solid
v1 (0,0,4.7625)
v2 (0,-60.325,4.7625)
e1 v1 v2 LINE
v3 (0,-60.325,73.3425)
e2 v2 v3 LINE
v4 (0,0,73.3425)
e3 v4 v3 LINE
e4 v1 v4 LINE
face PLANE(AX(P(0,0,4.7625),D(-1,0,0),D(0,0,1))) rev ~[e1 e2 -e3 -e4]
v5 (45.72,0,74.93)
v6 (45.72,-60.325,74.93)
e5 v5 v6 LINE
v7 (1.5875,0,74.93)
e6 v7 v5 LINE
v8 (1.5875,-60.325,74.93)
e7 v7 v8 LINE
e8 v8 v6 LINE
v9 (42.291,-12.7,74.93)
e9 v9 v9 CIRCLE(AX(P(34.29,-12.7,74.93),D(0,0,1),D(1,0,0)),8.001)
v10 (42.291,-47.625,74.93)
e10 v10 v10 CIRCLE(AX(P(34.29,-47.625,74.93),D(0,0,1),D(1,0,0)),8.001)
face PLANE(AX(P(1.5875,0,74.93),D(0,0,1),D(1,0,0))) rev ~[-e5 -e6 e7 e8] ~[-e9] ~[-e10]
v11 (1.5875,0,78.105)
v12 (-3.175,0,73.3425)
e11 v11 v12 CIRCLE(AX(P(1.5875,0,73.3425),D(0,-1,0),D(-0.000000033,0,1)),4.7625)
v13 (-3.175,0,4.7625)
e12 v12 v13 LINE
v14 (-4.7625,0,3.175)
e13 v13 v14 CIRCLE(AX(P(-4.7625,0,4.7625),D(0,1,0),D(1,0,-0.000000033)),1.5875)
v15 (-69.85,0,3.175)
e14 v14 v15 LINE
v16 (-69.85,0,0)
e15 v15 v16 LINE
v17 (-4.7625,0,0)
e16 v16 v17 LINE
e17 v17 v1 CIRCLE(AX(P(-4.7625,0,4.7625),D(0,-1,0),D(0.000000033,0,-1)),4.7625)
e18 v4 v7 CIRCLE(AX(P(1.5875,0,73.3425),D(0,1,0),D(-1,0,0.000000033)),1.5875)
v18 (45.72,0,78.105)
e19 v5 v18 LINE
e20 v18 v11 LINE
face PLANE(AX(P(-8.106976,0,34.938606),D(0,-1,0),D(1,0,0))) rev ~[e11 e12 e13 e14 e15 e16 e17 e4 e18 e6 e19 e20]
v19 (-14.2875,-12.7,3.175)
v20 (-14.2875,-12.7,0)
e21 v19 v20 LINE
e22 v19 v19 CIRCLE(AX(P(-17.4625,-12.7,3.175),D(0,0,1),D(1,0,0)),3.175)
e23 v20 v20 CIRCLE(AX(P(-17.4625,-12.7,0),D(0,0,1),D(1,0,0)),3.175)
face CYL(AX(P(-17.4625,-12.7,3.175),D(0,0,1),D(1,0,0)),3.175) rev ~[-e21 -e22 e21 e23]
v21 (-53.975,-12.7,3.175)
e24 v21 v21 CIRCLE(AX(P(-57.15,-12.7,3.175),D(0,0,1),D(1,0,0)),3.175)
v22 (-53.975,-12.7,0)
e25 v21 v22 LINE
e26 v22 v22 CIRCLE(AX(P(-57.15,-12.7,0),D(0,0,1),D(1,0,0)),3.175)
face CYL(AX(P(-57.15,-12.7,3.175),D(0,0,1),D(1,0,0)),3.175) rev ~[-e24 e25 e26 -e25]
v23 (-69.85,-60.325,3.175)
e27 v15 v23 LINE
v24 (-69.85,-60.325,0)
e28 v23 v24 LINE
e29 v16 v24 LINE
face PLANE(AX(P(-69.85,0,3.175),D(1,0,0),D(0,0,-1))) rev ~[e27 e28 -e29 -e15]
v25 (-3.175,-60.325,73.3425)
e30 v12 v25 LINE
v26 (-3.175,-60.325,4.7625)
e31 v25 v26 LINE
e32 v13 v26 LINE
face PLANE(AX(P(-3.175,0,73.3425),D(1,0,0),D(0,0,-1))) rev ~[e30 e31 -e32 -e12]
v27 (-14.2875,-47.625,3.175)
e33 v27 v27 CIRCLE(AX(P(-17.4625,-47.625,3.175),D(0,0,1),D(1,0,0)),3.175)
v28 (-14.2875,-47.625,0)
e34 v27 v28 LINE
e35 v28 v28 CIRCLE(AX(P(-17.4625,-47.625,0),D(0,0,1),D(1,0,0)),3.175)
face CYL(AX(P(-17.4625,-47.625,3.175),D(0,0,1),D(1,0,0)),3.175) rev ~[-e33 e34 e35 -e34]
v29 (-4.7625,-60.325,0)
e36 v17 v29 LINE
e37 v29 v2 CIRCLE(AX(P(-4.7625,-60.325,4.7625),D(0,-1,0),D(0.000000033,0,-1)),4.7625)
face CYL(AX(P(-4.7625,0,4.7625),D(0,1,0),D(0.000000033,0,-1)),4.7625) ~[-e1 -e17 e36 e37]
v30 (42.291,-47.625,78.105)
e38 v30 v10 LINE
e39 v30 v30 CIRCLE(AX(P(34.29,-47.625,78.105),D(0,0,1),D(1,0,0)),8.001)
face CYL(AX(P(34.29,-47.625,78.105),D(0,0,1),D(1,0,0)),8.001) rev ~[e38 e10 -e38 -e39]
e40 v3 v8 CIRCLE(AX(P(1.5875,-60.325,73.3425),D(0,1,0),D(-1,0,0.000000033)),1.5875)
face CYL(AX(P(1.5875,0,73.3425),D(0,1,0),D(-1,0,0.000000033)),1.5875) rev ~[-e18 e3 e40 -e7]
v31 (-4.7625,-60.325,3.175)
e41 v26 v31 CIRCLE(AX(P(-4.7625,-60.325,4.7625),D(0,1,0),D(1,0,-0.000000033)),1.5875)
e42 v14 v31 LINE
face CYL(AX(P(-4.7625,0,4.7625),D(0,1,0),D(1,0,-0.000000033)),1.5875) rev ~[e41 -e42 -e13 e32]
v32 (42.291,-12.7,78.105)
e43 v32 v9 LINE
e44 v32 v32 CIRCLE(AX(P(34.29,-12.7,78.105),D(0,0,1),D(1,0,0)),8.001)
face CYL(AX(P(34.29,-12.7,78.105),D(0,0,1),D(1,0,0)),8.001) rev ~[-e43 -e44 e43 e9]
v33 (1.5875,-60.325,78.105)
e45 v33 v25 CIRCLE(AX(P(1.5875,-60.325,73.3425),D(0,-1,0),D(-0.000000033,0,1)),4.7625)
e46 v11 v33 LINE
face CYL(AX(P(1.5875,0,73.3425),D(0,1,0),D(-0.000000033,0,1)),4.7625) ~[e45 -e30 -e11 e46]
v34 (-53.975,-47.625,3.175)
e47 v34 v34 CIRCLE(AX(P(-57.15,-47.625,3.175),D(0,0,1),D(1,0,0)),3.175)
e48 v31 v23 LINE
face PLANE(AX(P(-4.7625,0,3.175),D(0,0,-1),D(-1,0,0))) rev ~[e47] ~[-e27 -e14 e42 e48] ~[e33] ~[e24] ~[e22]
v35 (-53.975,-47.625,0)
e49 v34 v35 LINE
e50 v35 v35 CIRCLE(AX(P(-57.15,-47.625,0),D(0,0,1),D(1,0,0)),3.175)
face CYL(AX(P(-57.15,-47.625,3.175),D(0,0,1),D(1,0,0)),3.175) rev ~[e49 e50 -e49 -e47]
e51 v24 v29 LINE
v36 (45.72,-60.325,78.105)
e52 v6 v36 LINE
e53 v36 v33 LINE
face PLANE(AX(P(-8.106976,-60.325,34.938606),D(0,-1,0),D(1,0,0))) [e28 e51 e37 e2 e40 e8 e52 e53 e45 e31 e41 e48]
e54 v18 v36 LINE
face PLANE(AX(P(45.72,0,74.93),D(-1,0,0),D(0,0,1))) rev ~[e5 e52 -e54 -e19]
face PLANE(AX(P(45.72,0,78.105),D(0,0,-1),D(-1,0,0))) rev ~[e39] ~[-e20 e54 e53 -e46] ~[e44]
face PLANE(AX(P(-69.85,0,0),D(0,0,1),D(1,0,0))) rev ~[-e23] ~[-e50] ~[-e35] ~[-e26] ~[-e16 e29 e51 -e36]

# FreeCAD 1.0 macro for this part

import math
import FreeCAD as App
import Part
import Sketcher
from FreeCAD import Vector
Q = App.Units.Quantity

doc = App.newDocument("Part")
body = doc.addObject("PartDesign::Body", "Body")

sketch1 = body.newObject("Sketcher::SketchObject", "Sketch")
sketch1.AttachmentSupport = (doc.getObject("XZ_Plane"), [""])
sketch1.MapMode = "FlatFace"
sketch1.addGeometry(Part.LineSegment(Vector(-4.8, 3.2, 0), Vector(-69.8, 3.2, 0)), False)
sketch1.addGeometry(Part.LineSegment(Vector(-69.8, 3.2, 0), Vector(-69.8, 0, 0)), False)
sketch1.addGeometry(Part.LineSegment(Vector(-69.8, 0, 0), Vector(-4.8, 0, 0)), False)
sketch1.addGeometry(Part.ArcOfCircle(Part.Circle(Vector(-4.8, 4.8, 0), Vector(0, 0, 1), 4.8), math.radians(-90), math.radians(0)), False)
sketch1.addGeometry(Part.LineSegment(Vector(0, 4.8, 0), Vector(0, 73.3, 0)), False)
sketch1.addGeometry(Part.ArcOfCircle(Part.Circle(Vector(1.6, 73.3, 0), Vector(0, 0, 1), 1.6), math.radians(90), math.radians(180)), False)
sketch1.addGeometry(Part.LineSegment(Vector(1.6, 74.9, 0), Vector(45.7, 74.9, 0)), False)
sketch1.addGeometry(Part.LineSegment(Vector(45.7, 74.9, 0), Vector(45.7, 78.1, 0)), False)
sketch1.addGeometry(Part.LineSegment(Vector(45.7, 78.1, 0), Vector(1.6, 78.1, 0)), False)
sketch1.addGeometry(Part.ArcOfCircle(Part.Circle(Vector(1.6, 73.3, 0), Vector(0, 0, 1), 4.8), math.radians(90), math.radians(180)), False)
sketch1.addGeometry(Part.LineSegment(Vector(-3.2, 73.3, 0), Vector(-3.2, 4.8, 0)), False)
sketch1.addGeometry(Part.ArcOfCircle(Part.Circle(Vector(-4.8, 4.8, 0), Vector(0, 0, 1), 1.6), math.radians(-90), math.radians(0)), False)
sketch1.addConstraint(Sketcher.Constraint("Coincident", 0, 2, 1, 1))
sketch1.addConstraint(Sketcher.Constraint("Coincident", 1, 2, 2, 1))
sketch1.addConstraint(Sketcher.Constraint("Tangent", 2, 2, 3, 1))
sketch1.addConstraint(Sketcher.Constraint("Tangent", 3, 2, 4, 1))
sketch1.addConstraint(Sketcher.Constraint("Tangent", 4, 2, 5, 2))
sketch1.addConstraint(Sketcher.Constraint("Tangent", 5, 1, 6, 1))
sketch1.addConstraint(Sketcher.Constraint("Coincident", 6, 2, 7, 1))
sketch1.addConstraint(Sketcher.Constraint("Coincident", 7, 2, 8, 1))
sketch1.addConstraint(Sketcher.Constraint("Tangent", 8, 2, 9, 1))
sketch1.addConstraint(Sketcher.Constraint("Tangent", 9, 2, 10, 1))
sketch1.addConstraint(Sketcher.Constraint("Tangent", 10, 2, 11, 2))
sketch1.addConstraint(Sketcher.Constraint("Tangent", 11, 1, 0, 1))
sketch1.addConstraint(Sketcher.Constraint("Horizontal", 0))
sketch1.addConstraint(Sketcher.Constraint("Vertical", 1))
sketch1.addConstraint(Sketcher.Constraint("Horizontal", 2))
sketch1.addConstraint(Sketcher.Constraint("Vertical", 4))
sketch1.addConstraint(Sketcher.Constraint("Horizontal", 6))
sketch1.addConstraint(Sketcher.Constraint("Vertical", 7))
sketch1.addConstraint(Sketcher.Constraint("Horizontal", 8))
sketch1.addConstraint(Sketcher.Constraint("Vertical", 10))
sketch1.addConstraint(Sketcher.Constraint("Coincident", 9, 3, 5, 3))
sketch1.addConstraint(Sketcher.Constraint("Coincident", 11, 3, 3, 3))
sketch1.addConstraint(Sketcher.Constraint("Equal", 3, 9))
sketch1.addConstraint(Sketcher.Constraint("PointOnObject", 1, 2, -1))
sketch1.addConstraint(Sketcher.Constraint("PointOnObject", 3, 2, -2))
sketch1.addConstraint(Sketcher.Constraint("DistanceY", 4, 1, 4, 2, Q("2.7 in")))
sketch1.addConstraint(Sketcher.Constraint("Radius", 3, Q("0.1875 in")))
sketch1.addConstraint(Sketcher.Constraint("Radius", 5, Q("0.0625 in")))
sketch1.addConstraint(Sketcher.Constraint("DistanceX", -1, 1, 6, 2, Q("1.8 in")))
sketch1.addConstraint(Sketcher.Constraint("DistanceX", 0, 2, 0, 1, Q("2.5625 in")))
pad1 = body.newObject("PartDesign::Pad", "Pad")
pad1.Profile = sketch1
pad1.Length = Q("2.375 in")

sketch2 = body.newObject("Sketcher::SketchObject", "Sketch001")
sketch2.AttachmentSupport = (doc.getObject("XY_Plane"), [""])
sketch2.MapMode = "FlatFace"
sketch2.AttachmentOffset = App.Placement(Vector(0, 0, 3.075 * 25.4), App.Rotation())
sketch2.addGeometry(Part.Circle(Vector(34, -13, 0), Vector(0, 0, 1), 8), False)
sketch2.addGeometry(Part.Circle(Vector(34, -48, 0), Vector(0, 0, 1), 8), False)
sketch2.addConstraint(Sketcher.Constraint("Equal", 0, 1))
sketch2.addConstraint(Sketcher.Constraint("Vertical", 0, 3, 1, 3))
sketch2.addConstraint(Sketcher.Constraint("Diameter", 0, Q("0.63 in")))
sketch2.addConstraint(Sketcher.Constraint("DistanceY", 0, 3, -1, 1, Q("0.5 in")))
sketch2.addConstraint(Sketcher.Constraint("DistanceX", -1, 1, 0, 3, Q("1.35 in")))
sketch2.addConstraint(Sketcher.Constraint("DistanceY", 1, 3, -1, 1, Q("1.875 in")))
pocket1 = body.newObject("PartDesign::Pocket", "Pocket")
pocket1.Profile = sketch2
pocket1.Length = Q("1 in")

sketch3 = body.newObject("Sketcher::SketchObject", "Sketch002")
sketch3.AttachmentSupport = (doc.getObject("XY_Plane"), [""])
sketch3.MapMode = "FlatFace"
sketch3.AttachmentOffset = App.Placement(Vector(0, 0, 0.125 * 25.4), App.Rotation())
sketch3.addGeometry(Part.Circle(Vector(-57.1, -12.7, 0), Vector(0, 0, 1), 3.2), False)
sketch3.addGeometry(Part.Circle(Vector(-17.5, -12.7, 0), Vector(0, 0, 1), 3.2), False)
sketch3.addGeometry(Part.Circle(Vector(-17.5, -47.6, 0), Vector(0, 0, 1), 3.2), False)
sketch3.addGeometry(Part.Circle(Vector(-57.1, -47.6, 0), Vector(0, 0, 1), 3.2), False)
sketch3.addConstraint(Sketcher.Constraint("Equal", 0, 1))
sketch3.addConstraint(Sketcher.Constraint("Equal", 1, 2))
sketch3.addConstraint(Sketcher.Constraint("Equal", 2, 3))
sketch3.addConstraint(Sketcher.Constraint("Horizontal", 0, 3, 1, 3))
sketch3.addConstraint(Sketcher.Constraint("Horizontal", 2, 3, 3, 3))
sketch3.addConstraint(Sketcher.Constraint("Vertical", 1, 3, 2, 3))
sketch3.addConstraint(Sketcher.Constraint("Vertical", 0, 3, 3, 3))
sketch3.addConstraint(Sketcher.Constraint("Diameter", 0, Q("0.25 in")))
sketch3.addConstraint(Sketcher.Constraint("DistanceY", 0, 3, -1, 1, Q("0.5 in")))
sketch3.addConstraint(Sketcher.Constraint("DistanceX", 0, 3, -1, 1, Q("2.25 in")))
sketch3.addConstraint(Sketcher.Constraint("DistanceX", 1, 3, -1, 1, Q("0.6875 in")))
sketch3.addConstraint(Sketcher.Constraint("DistanceY", 2, 3, -1, 1, Q("1.875 in")))
pocket2 = body.newObject("PartDesign::Pocket", "Pocket001")
pocket2.Profile = sketch3
pocket2.Length = Q("1 in")

doc.recompute()
